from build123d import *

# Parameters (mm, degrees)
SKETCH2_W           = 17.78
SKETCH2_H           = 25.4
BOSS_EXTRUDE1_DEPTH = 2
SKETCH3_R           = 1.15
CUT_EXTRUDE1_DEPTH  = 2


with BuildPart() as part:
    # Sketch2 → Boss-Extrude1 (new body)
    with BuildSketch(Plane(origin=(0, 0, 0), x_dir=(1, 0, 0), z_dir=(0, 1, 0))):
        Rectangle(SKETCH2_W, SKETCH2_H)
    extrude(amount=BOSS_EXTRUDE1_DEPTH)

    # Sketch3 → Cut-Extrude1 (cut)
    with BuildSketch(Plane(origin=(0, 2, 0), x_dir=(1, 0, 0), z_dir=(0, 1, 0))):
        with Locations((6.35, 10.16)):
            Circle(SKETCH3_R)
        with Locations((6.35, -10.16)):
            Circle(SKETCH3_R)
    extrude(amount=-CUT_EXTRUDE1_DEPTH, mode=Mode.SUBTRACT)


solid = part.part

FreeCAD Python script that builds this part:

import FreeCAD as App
import Part
import Sketcher
from FreeCAD import Vector

doc = App.newDocument("Part")
body = doc.addObject("PartDesign::Body", "Body")

# Sketch on XZ plane
sketch1 = body.newObject("Sketcher::SketchObject", "Sketch")
sketch1.AttachmentSupport = (doc.getObject("XZ_Plane"), [""])
sketch1.MapMode = "FlatFace"
sketch1.addGeometry([
    Part.LineSegment(Vector(-9, -13, 0), Vector(-9, 13, 0)),
    Part.LineSegment(Vector(-9, 13, 0), Vector(9, 13, 0)),
    Part.LineSegment(Vector(9, 13, 0), Vector(9, -13, 0)),
    Part.LineSegment(Vector(9, -13, 0), Vector(-9, -13, 0)),
], False)
sketch1.addConstraint([
    Sketcher.Constraint("Coincident", 0, 2, 1, 1),
    Sketcher.Constraint("Coincident", 1, 2, 2, 1),
    Sketcher.Constraint("Coincident", 2, 2, 3, 1),
    Sketcher.Constraint("Coincident", 3, 2, 0, 1),
    Sketcher.Constraint("Vertical", 0),
    Sketcher.Constraint("Horizontal", 1),
    Sketcher.Constraint("Vertical", 2),
    Sketcher.Constraint("Horizontal", 3),
    Sketcher.Constraint("Symmetric", 0, 2, 2, 2, -1, 1),
    Sketcher.Constraint("DistanceY", 0, 1, 0, 2, 25.4),
    Sketcher.Constraint("DistanceX", 1, 1, 1, 2, 17.78),
])
pad1 = body.newObject("PartDesign::Pad", "Pad")
pad1.Profile = sketch1
pad1.Length = 2
pad1.Reversed = True

# Sketch on XZ plane
sketch2 = body.newObject("Sketcher::SketchObject", "Sketch001")
sketch2.AttachmentSupport = (doc.getObject("XZ_Plane"), [""])
sketch2.MapMode = "FlatFace"
sketch2.AttachmentOffset = App.Placement(Vector(0, 0, -2), App.Rotation())
sketch2.addGeometry([
    Part.Circle(Vector(6.3, -10.2, 0), Vector(0, 0, 1), 1.1),
    Part.Circle(Vector(6.3, 10.2, 0), Vector(0, 0, 1), 1.1),
], False)
sketch2.addConstraint([
    Sketcher.Constraint("Equal", 0, 1),
    Sketcher.Constraint("Symmetric", 0, 3, 1, 3, -1),
    Sketcher.Constraint("Diameter", 0, 2.3),
    Sketcher.Constraint("DistanceX", -1, 1, 0, 3, 6.35),
    Sketcher.Constraint("DistanceY", 0, 3, -1, 1, 10.16),
])
pocket1 = body.newObject("PartDesign::Pocket", "Pocket")
pocket1.Profile = sketch2
pocket1.Length = 2
pocket1.Reversed = True

doc.recompute()
